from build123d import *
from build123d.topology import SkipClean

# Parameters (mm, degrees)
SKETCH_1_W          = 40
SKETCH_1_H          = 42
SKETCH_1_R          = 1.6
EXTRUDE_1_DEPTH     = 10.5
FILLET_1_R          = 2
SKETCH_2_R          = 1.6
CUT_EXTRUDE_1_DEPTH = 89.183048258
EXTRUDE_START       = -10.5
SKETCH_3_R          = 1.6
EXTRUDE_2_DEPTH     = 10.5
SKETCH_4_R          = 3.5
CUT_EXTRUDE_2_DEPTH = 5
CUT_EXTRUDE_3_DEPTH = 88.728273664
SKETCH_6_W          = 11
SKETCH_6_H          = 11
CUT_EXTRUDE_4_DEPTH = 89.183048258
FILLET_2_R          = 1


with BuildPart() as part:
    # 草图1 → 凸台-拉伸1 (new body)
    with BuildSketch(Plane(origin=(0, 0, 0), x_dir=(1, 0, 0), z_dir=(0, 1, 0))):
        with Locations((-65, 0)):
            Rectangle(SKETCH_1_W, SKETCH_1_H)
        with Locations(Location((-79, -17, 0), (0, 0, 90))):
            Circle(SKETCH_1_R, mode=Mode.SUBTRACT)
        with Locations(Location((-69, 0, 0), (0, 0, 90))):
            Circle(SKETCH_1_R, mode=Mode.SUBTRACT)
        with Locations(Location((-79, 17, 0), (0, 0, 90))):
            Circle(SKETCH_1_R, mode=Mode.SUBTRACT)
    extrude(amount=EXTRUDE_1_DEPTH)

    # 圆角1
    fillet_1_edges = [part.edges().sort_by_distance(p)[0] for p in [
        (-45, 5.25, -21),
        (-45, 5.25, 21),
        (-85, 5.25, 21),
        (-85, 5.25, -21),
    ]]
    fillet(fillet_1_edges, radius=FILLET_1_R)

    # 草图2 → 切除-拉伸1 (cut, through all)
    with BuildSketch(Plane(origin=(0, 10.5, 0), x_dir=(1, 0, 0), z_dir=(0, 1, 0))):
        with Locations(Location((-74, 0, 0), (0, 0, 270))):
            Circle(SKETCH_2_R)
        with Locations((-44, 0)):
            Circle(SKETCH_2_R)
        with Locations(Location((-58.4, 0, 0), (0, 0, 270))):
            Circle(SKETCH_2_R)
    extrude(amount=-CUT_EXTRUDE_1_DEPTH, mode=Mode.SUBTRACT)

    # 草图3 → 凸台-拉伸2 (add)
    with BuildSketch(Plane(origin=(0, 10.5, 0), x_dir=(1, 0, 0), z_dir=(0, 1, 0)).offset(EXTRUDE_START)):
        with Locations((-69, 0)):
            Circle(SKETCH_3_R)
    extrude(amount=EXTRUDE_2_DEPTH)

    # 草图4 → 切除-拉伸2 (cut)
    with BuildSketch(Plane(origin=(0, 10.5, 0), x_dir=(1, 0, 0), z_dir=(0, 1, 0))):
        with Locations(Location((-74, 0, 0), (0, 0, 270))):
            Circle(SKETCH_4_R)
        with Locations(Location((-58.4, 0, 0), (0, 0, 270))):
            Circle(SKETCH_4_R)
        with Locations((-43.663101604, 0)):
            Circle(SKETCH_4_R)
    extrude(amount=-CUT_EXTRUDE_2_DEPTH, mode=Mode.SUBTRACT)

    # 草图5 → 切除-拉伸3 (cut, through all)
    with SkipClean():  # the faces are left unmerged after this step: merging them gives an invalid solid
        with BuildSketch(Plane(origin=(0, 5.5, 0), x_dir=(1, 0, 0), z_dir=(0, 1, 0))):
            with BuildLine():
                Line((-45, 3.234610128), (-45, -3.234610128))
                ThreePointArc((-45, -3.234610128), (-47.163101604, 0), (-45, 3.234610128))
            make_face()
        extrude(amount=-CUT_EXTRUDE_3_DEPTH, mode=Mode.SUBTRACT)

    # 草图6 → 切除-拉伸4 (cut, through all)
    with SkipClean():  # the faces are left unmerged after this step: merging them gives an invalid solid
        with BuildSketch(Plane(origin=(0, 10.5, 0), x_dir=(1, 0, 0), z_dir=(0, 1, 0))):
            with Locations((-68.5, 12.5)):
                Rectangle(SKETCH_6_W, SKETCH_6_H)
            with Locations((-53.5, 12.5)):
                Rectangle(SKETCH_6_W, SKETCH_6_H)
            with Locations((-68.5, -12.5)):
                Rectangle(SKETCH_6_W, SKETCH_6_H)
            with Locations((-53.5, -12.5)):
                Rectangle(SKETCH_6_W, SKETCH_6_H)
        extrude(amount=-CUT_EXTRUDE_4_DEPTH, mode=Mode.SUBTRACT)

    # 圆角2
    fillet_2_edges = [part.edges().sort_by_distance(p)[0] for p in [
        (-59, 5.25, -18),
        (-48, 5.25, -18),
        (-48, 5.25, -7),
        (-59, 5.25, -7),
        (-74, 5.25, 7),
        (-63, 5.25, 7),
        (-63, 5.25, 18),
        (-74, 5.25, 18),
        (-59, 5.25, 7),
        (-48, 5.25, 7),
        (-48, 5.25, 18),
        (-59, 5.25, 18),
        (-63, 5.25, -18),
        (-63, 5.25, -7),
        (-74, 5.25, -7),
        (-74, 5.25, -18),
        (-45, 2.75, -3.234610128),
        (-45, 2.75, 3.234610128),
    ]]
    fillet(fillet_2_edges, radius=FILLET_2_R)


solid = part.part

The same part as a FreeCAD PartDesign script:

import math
import FreeCAD as App
import Part
import Sketcher
from FreeCAD import Vector


def edges_at(feature, points):
    """Names of the edges that pass closest to the given points."""
    edges = feature.Shape.Edges
    near = lambda p: min(range(len(edges)), key=lambda i: edges[i].distToShape(Part.Vertex(*p))[0])
    return sorted({f"Edge{near(p) + 1}" for p in points})

doc = App.newDocument("Part")
params = doc.addObject("Spreadsheet::Sheet", "Params")
for row, (alias, value) in enumerate([
    ("sketch1_diameter", "3.2 mm"),
    ("sketch1_width", "40 mm"),
    ("sketch1_height", "42 mm"),
    ("pad1_length", "10.5 mm"),
    ("fillet_radius", "2 mm"),
    ("sketch2_diameter", "3.2 mm"),
    ("sketch3_diameter", "3.2 mm"),
    ("pad2_length", "10.5 mm"),
    ("sketch4_diameter", "7 mm"),
    ("pocket2_length", "5 mm"),
    ("sketch5_radius", "3.5 mm"),
    ("sketch6_width", "11 mm"),
    ("fillet2_radius", "1 mm"),
], start=1):
    params.set(f"A{row}", alias)
    params.set(f"B{row}", "=" + value)
    params.setAlias(f"B{row}", alias)

body = doc.addObject("PartDesign::Body", "Body")

sketch1 = doc.addObject("Sketcher::SketchObject", "Sketch")
body.addObject(sketch1)
sketch1.AttachmentSupport = (doc.XZ_Plane, [""])
sketch1.MapMode = "FlatFace"
sketch1.addGeometry([
    Part.LineSegment(Vector(-85, -21, 0), Vector(-85, 21, 0)),
    Part.LineSegment(Vector(-85, 21, 0), Vector(-45, 21, 0)),
    Part.LineSegment(Vector(-45, 21, 0), Vector(-45, -21, 0)),
    Part.LineSegment(Vector(-45, -21, 0), Vector(-85, -21, 0)),
    Part.Circle(Vector(-79, 17, 0), Vector(0, 0, 1), 1.6),
    Part.Circle(Vector(-79, -17, 0), Vector(0, 0, 1), 1.6),
    Part.Circle(Vector(-69, 0, 0), Vector(0, 0, 1), 1.6),
], False)
sketch1.addConstraint([
    Sketcher.Constraint("Coincident", 0, 2, 1, 1),
    Sketcher.Constraint("Coincident", 1, 2, 2, 1),
    Sketcher.Constraint("Coincident", 2, 2, 3, 1),
    Sketcher.Constraint("Coincident", 3, 2, 0, 1),
    Sketcher.Constraint("Vertical", 0),
    Sketcher.Constraint("Horizontal", 1),
    Sketcher.Constraint("Vertical", 2),
    Sketcher.Constraint("Horizontal", 3),
    Sketcher.Constraint("Equal", 4, 5),
    Sketcher.Constraint("Equal", 5, 6),
    Sketcher.Constraint("Symmetric", 4, 3, 5, 3, -1),
    Sketcher.Constraint("PointOnObject", 6, 3, -1),
    Sketcher.Constraint("Diameter", 4, 3.2),
    Sketcher.Constraint("DistanceX", 1, 1, 1, 2, 40.0),
    Sketcher.Constraint("DistanceY", 0, 1, 0, 2, 42.0),
    Sketcher.Constraint("DistanceX", 4, 3, -1, 1, 79.0),
    Sketcher.Constraint("DistanceY", -1, 1, 4, 3, 17.0),
    Sketcher.Constraint("DistanceX", 6, 3, -1, 1, 69.0),
    Sketcher.Constraint("DistanceX", 0, 2, -1, 1, 85.0),
    Sketcher.Constraint("DistanceY", -1, 1, 0, 2, 21.0),
])
sketch1.setExpression("Constraints[12]", "Params.sketch1_diameter")
sketch1.setExpression("Constraints[13]", "Params.sketch1_width")
sketch1.setExpression("Constraints[14]", "Params.sketch1_height")
pad1 = doc.addObject("PartDesign::Pad", "Pad")
body.addObject(pad1)
pad1.Profile = sketch1
pad1.setExpression("Length", "Params.pad1_length")
pad1.Reversed = True
doc.recompute()

fillet = doc.addObject("PartDesign::Fillet", "Fillet")
body.addObject(fillet)
fillet.Base = (pad1, edges_at(pad1, [
    (-45, 5.25, -21),
    (-45, 5.25, 21),
    (-85, 5.25, 21),
    (-85, 5.25, -21),
]))
fillet.setExpression("Radius", "Params.fillet_radius")

sketch2 = doc.addObject("Sketcher::SketchObject", "Sketch001")
body.addObject(sketch2)
sketch2.AttachmentSupport = (doc.XZ_Plane, [""])
sketch2.MapMode = "FlatFace"
sketch2.AttachmentOffset = App.Placement(Vector(0, 0, -10.5), App.Rotation())
sketch2.addGeometry([
    Part.Circle(Vector(-74, 0, 0), Vector(0, 0, 1), 1.6),
    Part.Circle(Vector(-44, 0, 0), Vector(0, 0, 1), 1.6),
    Part.Circle(Vector(-58.4, 0, 0), Vector(0, 0, 1), 1.6),
], False)
sketch2.addConstraint([
    Sketcher.Constraint("Equal", 0, 1),
    Sketcher.Constraint("Equal", 1, 2),
    Sketcher.Constraint("PointOnObject", 0, 3, -1),
    Sketcher.Constraint("PointOnObject", 1, 3, -1),
    Sketcher.Constraint("PointOnObject", 2, 3, -1),
    Sketcher.Constraint("Diameter", 0, 3.2),
    Sketcher.Constraint("DistanceX", 0, 3, -1, 1, 74.0),
    Sketcher.Constraint("DistanceX", 1, 3, -1, 1, 44.0),
    Sketcher.Constraint("DistanceX", 2, 3, -1, 1, 58.4),
])
sketch2.setExpression("Constraints[5]", "Params.sketch2_diameter")
pocket1 = doc.addObject("PartDesign::Pocket", "Pocket")
body.addObject(pocket1)
pocket1.Profile = sketch2
pocket1.Type = "ThroughAll"
pocket1.Reversed = True

sketch3 = doc.addObject("Sketcher::SketchObject", "Sketch002")
body.addObject(sketch3)
sketch3.AttachmentSupport = (doc.XZ_Plane, [""])
sketch3.MapMode = "FlatFace"
sketch3.addGeometry(Part.Circle(Vector(-69, 0, 0), Vector(0, 0, 1), 1.6), False)
sketch3.addConstraint([
    Sketcher.Constraint("PointOnObject", 0, 3, -1),
    Sketcher.Constraint("Diameter", 0, 3.2),
    Sketcher.Constraint("DistanceX", 0, 3, -1, 1, 69.0),
])
sketch3.setExpression("Constraints[1]", "Params.sketch3_diameter")
pad2 = doc.addObject("PartDesign::Pad", "Pad001")
body.addObject(pad2)
pad2.Profile = sketch3
pad2.setExpression("Length", "Params.pad2_length")
pad2.Reversed = True

sketch4 = doc.addObject("Sketcher::SketchObject", "Sketch003")
body.addObject(sketch4)
sketch4.AttachmentSupport = (doc.XZ_Plane, [""])
sketch4.MapMode = "FlatFace"
sketch4.AttachmentOffset = App.Placement(Vector(0, 0, -10.5), App.Rotation())
sketch4.addGeometry([
    Part.Circle(Vector(-74, 0, 0), Vector(0, 0, 1), 3.5),
    Part.Circle(Vector(-58.4, 0, 0), Vector(0, 0, 1), 3.5),
    Part.Circle(Vector(-43.7, 0, 0), Vector(0, 0, 1), 3.5),
], False)
sketch4.addConstraint([
    Sketcher.Constraint("Equal", 0, 1),
    Sketcher.Constraint("Equal", 1, 2),
    Sketcher.Constraint("PointOnObject", 0, 3, -1),
    Sketcher.Constraint("PointOnObject", 1, 3, -1),
    Sketcher.Constraint("PointOnObject", 2, 3, -1),
    Sketcher.Constraint("Diameter", 0, 7.0),
    Sketcher.Constraint("DistanceX", 0, 3, -1, 1, 74.0),
    Sketcher.Constraint("DistanceX", 1, 3, -1, 1, 58.4),
    Sketcher.Constraint("DistanceX", 2, 3, -1, 1, 43.663102),
])
sketch4.setExpression("Constraints[5]", "Params.sketch4_diameter")
pocket2 = doc.addObject("PartDesign::Pocket", "Pocket001")
body.addObject(pocket2)
pocket2.Profile = sketch4
pocket2.setExpression("Length", "Params.pocket2_length")
pocket2.Reversed = True

sketch5 = doc.addObject("Sketcher::SketchObject", "Sketch004")
body.addObject(sketch5)
sketch5.AttachmentSupport = (doc.XZ_Plane, [""])
sketch5.MapMode = "FlatFace"
sketch5.AttachmentOffset = App.Placement(Vector(0, 0, -5.5), App.Rotation())
sketch5.addGeometry([
    Part.LineSegment(Vector(-45, 3.2, 0), Vector(-45, -3.2, 0)),
    Part.ArcOfCircle(Part.Circle(Vector(-43.7, 0, 0), Vector(0, 0, 1), 3.5), math.radians(112), math.radians(248)),
], False)
sketch5.addConstraint([
    Sketcher.Constraint("Coincident", 0, 1, 1, 1),
    Sketcher.Constraint("Coincident", 1, 2, 0, 2),
    Sketcher.Constraint("Vertical", 0),
    Sketcher.Constraint("PointOnObject", 1, 3, -1),
    Sketcher.Constraint("Radius", 1, 3.5),
    Sketcher.Constraint("DistanceX", 0, 1, -1, 1, 45.0),
    Sketcher.Constraint("DistanceY", 0, 2, 0, 1, 6.46922),
])
sketch5.setExpression("Constraints[4]", "Params.sketch5_radius")
pocket3 = doc.addObject("PartDesign::Pocket", "Pocket002")
body.addObject(pocket3)
pocket3.Profile = sketch5
pocket3.Type = "ThroughAll"
pocket3.Reversed = True

sketch6 = doc.addObject("Sketcher::SketchObject", "Sketch005")
body.addObject(sketch6)
sketch6.AttachmentSupport = (doc.XZ_Plane, [""])
sketch6.MapMode = "FlatFace"
sketch6.AttachmentOffset = App.Placement(Vector(0, 0, -10.5), App.Rotation())
sketch6.addGeometry([
    Part.LineSegment(Vector(-74, -18, 0), Vector(-74, -7, 0)),
    Part.LineSegment(Vector(-74, -7, 0), Vector(-63, -7, 0)),
    Part.LineSegment(Vector(-63, -7, 0), Vector(-63, -18, 0)),
    Part.LineSegment(Vector(-63, -18, 0), Vector(-74, -18, 0)),
    Part.LineSegment(Vector(-59, -18, 0), Vector(-59, -7, 0)),
    Part.LineSegment(Vector(-59, -7, 0), Vector(-48, -7, 0)),
    Part.LineSegment(Vector(-48, -7, 0), Vector(-48, -18, 0)),
    Part.LineSegment(Vector(-48, -18, 0), Vector(-59, -18, 0)),
    Part.LineSegment(Vector(-74, 7, 0), Vector(-74, 18, 0)),
    Part.LineSegment(Vector(-74, 18, 0), Vector(-63, 18, 0)),
    Part.LineSegment(Vector(-63, 18, 0), Vector(-63, 7, 0)),
    Part.LineSegment(Vector(-63, 7, 0), Vector(-74, 7, 0)),
    Part.LineSegment(Vector(-59, 7, 0), Vector(-59, 18, 0)),
    Part.LineSegment(Vector(-59, 18, 0), Vector(-48, 18, 0)),
    Part.LineSegment(Vector(-48, 18, 0), Vector(-48, 7, 0)),
    Part.LineSegment(Vector(-48, 7, 0), Vector(-59, 7, 0)),
], False)
sketch6.addConstraint([
    Sketcher.Constraint("Coincident", 0, 2, 1, 1),
    Sketcher.Constraint("Coincident", 1, 2, 2, 1),
    Sketcher.Constraint("Coincident", 2, 2, 3, 1),
    Sketcher.Constraint("Coincident", 3, 2, 0, 1),
    Sketcher.Constraint("Coincident", 4, 2, 5, 1),
    Sketcher.Constraint("Coincident", 5, 2, 6, 1),
    Sketcher.Constraint("Coincident", 6, 2, 7, 1),
    Sketcher.Constraint("Coincident", 7, 2, 4, 1),
    Sketcher.Constraint("Coincident", 8, 2, 9, 1),
    Sketcher.Constraint("Coincident", 9, 2, 10, 1),
    Sketcher.Constraint("Coincident", 10, 2, 11, 1),
    Sketcher.Constraint("Coincident", 11, 2, 8, 1),
    Sketcher.Constraint("Coincident", 12, 2, 13, 1),
    Sketcher.Constraint("Coincident", 13, 2, 14, 1),
    Sketcher.Constraint("Coincident", 14, 2, 15, 1),
    Sketcher.Constraint("Coincident", 15, 2, 12, 1),
    Sketcher.Constraint("Vertical", 0),
    Sketcher.Constraint("Horizontal", 1),
    Sketcher.Constraint("Vertical", 2),
    Sketcher.Constraint("Horizontal", 3),
    Sketcher.Constraint("Vertical", 4),
    Sketcher.Constraint("Horizontal", 5),
    Sketcher.Constraint("Vertical", 6),
    Sketcher.Constraint("Horizontal", 7),
    Sketcher.Constraint("Vertical", 8),
    Sketcher.Constraint("Horizontal", 9),
    Sketcher.Constraint("Vertical", 10),
    Sketcher.Constraint("Horizontal", 11),
    Sketcher.Constraint("Vertical", 12),
    Sketcher.Constraint("Horizontal", 13),
    Sketcher.Constraint("Vertical", 14),
    Sketcher.Constraint("Horizontal", 15),
    Sketcher.Constraint("Symmetric", 3, 2, 8, 2, -1),
    Sketcher.Constraint("Symmetric", 1, 2, 10, 2, -1),
    Sketcher.Constraint("Symmetric", 7, 2, 12, 2, -1),
    Sketcher.Constraint("Symmetric", 5, 2, 14, 2, -1),
    Sketcher.Constraint("Horizontal", 1, 2, 4, 2),
    Sketcher.Constraint("Horizontal", 3, 2, 6, 2),
    Sketcher.Constraint("Equal", 3, 5),
    Sketcher.Constraint("Equal", 15, 0),
    Sketcher.Constraint("DistanceX", 1, 1, 1, 2, 11.0),
    Sketcher.Constraint("DistanceX", 0, 2, -1, 1, 74.0),
    Sketcher.Constraint("DistanceY", 0, 2, -1, 1, 7.0),
    Sketcher.Constraint("DistanceX", 4, 2, -1, 1, 59.0),
])
sketch6.setExpression("Constraints[40]", "Params.sketch6_width")
pocket4 = doc.addObject("PartDesign::Pocket", "Pocket003")
body.addObject(pocket4)
pocket4.Profile = sketch6
pocket4.Type = "ThroughAll"
pocket4.Reversed = True
doc.recompute()

fillet2 = doc.addObject("PartDesign::Fillet", "Fillet001")
body.addObject(fillet2)
fillet2.Base = (pocket4, edges_at(pocket4, [
    (-59, 5.25, -18),
    (-48, 5.25, -18),
    (-48, 5.25, -7),
    (-59, 5.25, -7),
    (-74, 5.25, 7),
    (-63, 5.25, 7),
    (-63, 5.25, 18),
    (-74, 5.25, 18),
    (-59, 5.25, 7),
    (-48, 5.25, 7),
    (-48, 5.25, 18),
    (-59, 5.25, 18),
    (-63, 5.25, -18),
    (-63, 5.25, -7),
    (-74, 5.25, -7),
    (-74, 5.25, -18),
    (-45, 2.75, -3.235),
    (-45, 2.75, 3.235),
]))
fillet2.setExpression("Radius", "Params.fillet2_radius")

doc.recompute()
